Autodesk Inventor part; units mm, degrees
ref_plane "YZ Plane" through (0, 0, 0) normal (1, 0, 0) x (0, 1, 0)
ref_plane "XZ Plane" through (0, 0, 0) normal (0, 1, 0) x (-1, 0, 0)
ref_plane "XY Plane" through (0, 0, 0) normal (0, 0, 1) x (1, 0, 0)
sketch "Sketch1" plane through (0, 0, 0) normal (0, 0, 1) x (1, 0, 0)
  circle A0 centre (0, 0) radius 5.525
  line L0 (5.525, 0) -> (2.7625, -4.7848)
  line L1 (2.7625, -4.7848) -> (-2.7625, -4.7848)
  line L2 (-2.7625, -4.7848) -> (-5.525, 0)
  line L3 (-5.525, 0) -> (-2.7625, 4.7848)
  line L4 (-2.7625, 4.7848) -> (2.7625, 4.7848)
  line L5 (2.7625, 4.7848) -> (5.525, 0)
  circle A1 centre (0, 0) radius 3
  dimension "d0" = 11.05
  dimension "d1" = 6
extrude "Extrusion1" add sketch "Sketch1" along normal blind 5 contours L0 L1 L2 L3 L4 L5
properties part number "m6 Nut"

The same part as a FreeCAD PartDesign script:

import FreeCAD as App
import Part
import Sketcher

V = App.Vector
Q = App.Units.Quantity


def add_polygon(sketch, points):
    """Adds a closed chain of lines whose ends are joined by coincident constraints."""
    first, n = sketch.GeometryCount, len(points)
    for a, b in zip(points, points[1:] + points[:1]):
        sketch.addGeometry(Part.LineSegment(App.Vector(*a, 0), App.Vector(*b, 0)), False)
    for i in range(n):
        sketch.addConstraint(Sketcher.Constraint("Coincident", first + i, 2, first + (i + 1) % n, 1))

doc = App.newDocument("Part")
params = doc.addObject("Spreadsheet::Sheet", "Params")
for row, (alias, value) in enumerate([
    ("sketch1_diameter", "6 mm"),
    ("pad1_length", "5 mm"),
], start=1):
    params.set(f"A{row}", alias)
    params.set(f"B{row}", "=" + value)
    params.setAlias(f"B{row}", alias)

body = doc.addObject("PartDesign::Body", "Body")

sketch1 = body.newObject("Sketcher::SketchObject", "Sketch")
sketch1.AttachmentSupport = (doc.getObject("XY_Plane"), [""])
sketch1.MapMode = "FlatFace"
add_polygon(sketch1, [(2.7625, -4.7848), (5.525, 0), (2.7625, 4.7848), (-2.7625, 4.7848), (-5.525, 0), (-2.7625, -4.7848)])
sketch1.addGeometry(Part.Circle(V(0, 0, 0), V(0, 0, 1), 3), False)
sketch1.addConstraint([
    Sketcher.Constraint("Horizontal", 2),
    Sketcher.Constraint("Horizontal", 5),
    Sketcher.Constraint("Coincident", 6, 3, -1, 1),
    Sketcher.Constraint("Symmetric", 0, 2, 3, 2, -1, 1),
    Sketcher.Constraint("Symmetric", 1, 2, 4, 2, -1, 1),
    Sketcher.Constraint("PointOnObject", 0, 2, -1),
    Sketcher.Constraint("Parallel", 0, 3),
    Sketcher.Constraint("Vertical", 2, 2, 4, 2),
    Sketcher.Constraint("Diameter", 6, 6.0),
    Sketcher.Constraint("Angle", 0, Q("60 deg")),
    Sketcher.Constraint("DistanceX", 3, 2, 0, 2, 11.05),
    Sketcher.Constraint("DistanceX", 2, 2, 2, 1, 5.525),
])
sketch1.setExpression("Constraints[14]", "Params.sketch1_diameter")
pad1 = body.newObject("PartDesign::Pad", "Pad")
pad1.Profile = sketch1
pad1.setExpression("Length", "Params.pad1_length")

doc.recompute()
